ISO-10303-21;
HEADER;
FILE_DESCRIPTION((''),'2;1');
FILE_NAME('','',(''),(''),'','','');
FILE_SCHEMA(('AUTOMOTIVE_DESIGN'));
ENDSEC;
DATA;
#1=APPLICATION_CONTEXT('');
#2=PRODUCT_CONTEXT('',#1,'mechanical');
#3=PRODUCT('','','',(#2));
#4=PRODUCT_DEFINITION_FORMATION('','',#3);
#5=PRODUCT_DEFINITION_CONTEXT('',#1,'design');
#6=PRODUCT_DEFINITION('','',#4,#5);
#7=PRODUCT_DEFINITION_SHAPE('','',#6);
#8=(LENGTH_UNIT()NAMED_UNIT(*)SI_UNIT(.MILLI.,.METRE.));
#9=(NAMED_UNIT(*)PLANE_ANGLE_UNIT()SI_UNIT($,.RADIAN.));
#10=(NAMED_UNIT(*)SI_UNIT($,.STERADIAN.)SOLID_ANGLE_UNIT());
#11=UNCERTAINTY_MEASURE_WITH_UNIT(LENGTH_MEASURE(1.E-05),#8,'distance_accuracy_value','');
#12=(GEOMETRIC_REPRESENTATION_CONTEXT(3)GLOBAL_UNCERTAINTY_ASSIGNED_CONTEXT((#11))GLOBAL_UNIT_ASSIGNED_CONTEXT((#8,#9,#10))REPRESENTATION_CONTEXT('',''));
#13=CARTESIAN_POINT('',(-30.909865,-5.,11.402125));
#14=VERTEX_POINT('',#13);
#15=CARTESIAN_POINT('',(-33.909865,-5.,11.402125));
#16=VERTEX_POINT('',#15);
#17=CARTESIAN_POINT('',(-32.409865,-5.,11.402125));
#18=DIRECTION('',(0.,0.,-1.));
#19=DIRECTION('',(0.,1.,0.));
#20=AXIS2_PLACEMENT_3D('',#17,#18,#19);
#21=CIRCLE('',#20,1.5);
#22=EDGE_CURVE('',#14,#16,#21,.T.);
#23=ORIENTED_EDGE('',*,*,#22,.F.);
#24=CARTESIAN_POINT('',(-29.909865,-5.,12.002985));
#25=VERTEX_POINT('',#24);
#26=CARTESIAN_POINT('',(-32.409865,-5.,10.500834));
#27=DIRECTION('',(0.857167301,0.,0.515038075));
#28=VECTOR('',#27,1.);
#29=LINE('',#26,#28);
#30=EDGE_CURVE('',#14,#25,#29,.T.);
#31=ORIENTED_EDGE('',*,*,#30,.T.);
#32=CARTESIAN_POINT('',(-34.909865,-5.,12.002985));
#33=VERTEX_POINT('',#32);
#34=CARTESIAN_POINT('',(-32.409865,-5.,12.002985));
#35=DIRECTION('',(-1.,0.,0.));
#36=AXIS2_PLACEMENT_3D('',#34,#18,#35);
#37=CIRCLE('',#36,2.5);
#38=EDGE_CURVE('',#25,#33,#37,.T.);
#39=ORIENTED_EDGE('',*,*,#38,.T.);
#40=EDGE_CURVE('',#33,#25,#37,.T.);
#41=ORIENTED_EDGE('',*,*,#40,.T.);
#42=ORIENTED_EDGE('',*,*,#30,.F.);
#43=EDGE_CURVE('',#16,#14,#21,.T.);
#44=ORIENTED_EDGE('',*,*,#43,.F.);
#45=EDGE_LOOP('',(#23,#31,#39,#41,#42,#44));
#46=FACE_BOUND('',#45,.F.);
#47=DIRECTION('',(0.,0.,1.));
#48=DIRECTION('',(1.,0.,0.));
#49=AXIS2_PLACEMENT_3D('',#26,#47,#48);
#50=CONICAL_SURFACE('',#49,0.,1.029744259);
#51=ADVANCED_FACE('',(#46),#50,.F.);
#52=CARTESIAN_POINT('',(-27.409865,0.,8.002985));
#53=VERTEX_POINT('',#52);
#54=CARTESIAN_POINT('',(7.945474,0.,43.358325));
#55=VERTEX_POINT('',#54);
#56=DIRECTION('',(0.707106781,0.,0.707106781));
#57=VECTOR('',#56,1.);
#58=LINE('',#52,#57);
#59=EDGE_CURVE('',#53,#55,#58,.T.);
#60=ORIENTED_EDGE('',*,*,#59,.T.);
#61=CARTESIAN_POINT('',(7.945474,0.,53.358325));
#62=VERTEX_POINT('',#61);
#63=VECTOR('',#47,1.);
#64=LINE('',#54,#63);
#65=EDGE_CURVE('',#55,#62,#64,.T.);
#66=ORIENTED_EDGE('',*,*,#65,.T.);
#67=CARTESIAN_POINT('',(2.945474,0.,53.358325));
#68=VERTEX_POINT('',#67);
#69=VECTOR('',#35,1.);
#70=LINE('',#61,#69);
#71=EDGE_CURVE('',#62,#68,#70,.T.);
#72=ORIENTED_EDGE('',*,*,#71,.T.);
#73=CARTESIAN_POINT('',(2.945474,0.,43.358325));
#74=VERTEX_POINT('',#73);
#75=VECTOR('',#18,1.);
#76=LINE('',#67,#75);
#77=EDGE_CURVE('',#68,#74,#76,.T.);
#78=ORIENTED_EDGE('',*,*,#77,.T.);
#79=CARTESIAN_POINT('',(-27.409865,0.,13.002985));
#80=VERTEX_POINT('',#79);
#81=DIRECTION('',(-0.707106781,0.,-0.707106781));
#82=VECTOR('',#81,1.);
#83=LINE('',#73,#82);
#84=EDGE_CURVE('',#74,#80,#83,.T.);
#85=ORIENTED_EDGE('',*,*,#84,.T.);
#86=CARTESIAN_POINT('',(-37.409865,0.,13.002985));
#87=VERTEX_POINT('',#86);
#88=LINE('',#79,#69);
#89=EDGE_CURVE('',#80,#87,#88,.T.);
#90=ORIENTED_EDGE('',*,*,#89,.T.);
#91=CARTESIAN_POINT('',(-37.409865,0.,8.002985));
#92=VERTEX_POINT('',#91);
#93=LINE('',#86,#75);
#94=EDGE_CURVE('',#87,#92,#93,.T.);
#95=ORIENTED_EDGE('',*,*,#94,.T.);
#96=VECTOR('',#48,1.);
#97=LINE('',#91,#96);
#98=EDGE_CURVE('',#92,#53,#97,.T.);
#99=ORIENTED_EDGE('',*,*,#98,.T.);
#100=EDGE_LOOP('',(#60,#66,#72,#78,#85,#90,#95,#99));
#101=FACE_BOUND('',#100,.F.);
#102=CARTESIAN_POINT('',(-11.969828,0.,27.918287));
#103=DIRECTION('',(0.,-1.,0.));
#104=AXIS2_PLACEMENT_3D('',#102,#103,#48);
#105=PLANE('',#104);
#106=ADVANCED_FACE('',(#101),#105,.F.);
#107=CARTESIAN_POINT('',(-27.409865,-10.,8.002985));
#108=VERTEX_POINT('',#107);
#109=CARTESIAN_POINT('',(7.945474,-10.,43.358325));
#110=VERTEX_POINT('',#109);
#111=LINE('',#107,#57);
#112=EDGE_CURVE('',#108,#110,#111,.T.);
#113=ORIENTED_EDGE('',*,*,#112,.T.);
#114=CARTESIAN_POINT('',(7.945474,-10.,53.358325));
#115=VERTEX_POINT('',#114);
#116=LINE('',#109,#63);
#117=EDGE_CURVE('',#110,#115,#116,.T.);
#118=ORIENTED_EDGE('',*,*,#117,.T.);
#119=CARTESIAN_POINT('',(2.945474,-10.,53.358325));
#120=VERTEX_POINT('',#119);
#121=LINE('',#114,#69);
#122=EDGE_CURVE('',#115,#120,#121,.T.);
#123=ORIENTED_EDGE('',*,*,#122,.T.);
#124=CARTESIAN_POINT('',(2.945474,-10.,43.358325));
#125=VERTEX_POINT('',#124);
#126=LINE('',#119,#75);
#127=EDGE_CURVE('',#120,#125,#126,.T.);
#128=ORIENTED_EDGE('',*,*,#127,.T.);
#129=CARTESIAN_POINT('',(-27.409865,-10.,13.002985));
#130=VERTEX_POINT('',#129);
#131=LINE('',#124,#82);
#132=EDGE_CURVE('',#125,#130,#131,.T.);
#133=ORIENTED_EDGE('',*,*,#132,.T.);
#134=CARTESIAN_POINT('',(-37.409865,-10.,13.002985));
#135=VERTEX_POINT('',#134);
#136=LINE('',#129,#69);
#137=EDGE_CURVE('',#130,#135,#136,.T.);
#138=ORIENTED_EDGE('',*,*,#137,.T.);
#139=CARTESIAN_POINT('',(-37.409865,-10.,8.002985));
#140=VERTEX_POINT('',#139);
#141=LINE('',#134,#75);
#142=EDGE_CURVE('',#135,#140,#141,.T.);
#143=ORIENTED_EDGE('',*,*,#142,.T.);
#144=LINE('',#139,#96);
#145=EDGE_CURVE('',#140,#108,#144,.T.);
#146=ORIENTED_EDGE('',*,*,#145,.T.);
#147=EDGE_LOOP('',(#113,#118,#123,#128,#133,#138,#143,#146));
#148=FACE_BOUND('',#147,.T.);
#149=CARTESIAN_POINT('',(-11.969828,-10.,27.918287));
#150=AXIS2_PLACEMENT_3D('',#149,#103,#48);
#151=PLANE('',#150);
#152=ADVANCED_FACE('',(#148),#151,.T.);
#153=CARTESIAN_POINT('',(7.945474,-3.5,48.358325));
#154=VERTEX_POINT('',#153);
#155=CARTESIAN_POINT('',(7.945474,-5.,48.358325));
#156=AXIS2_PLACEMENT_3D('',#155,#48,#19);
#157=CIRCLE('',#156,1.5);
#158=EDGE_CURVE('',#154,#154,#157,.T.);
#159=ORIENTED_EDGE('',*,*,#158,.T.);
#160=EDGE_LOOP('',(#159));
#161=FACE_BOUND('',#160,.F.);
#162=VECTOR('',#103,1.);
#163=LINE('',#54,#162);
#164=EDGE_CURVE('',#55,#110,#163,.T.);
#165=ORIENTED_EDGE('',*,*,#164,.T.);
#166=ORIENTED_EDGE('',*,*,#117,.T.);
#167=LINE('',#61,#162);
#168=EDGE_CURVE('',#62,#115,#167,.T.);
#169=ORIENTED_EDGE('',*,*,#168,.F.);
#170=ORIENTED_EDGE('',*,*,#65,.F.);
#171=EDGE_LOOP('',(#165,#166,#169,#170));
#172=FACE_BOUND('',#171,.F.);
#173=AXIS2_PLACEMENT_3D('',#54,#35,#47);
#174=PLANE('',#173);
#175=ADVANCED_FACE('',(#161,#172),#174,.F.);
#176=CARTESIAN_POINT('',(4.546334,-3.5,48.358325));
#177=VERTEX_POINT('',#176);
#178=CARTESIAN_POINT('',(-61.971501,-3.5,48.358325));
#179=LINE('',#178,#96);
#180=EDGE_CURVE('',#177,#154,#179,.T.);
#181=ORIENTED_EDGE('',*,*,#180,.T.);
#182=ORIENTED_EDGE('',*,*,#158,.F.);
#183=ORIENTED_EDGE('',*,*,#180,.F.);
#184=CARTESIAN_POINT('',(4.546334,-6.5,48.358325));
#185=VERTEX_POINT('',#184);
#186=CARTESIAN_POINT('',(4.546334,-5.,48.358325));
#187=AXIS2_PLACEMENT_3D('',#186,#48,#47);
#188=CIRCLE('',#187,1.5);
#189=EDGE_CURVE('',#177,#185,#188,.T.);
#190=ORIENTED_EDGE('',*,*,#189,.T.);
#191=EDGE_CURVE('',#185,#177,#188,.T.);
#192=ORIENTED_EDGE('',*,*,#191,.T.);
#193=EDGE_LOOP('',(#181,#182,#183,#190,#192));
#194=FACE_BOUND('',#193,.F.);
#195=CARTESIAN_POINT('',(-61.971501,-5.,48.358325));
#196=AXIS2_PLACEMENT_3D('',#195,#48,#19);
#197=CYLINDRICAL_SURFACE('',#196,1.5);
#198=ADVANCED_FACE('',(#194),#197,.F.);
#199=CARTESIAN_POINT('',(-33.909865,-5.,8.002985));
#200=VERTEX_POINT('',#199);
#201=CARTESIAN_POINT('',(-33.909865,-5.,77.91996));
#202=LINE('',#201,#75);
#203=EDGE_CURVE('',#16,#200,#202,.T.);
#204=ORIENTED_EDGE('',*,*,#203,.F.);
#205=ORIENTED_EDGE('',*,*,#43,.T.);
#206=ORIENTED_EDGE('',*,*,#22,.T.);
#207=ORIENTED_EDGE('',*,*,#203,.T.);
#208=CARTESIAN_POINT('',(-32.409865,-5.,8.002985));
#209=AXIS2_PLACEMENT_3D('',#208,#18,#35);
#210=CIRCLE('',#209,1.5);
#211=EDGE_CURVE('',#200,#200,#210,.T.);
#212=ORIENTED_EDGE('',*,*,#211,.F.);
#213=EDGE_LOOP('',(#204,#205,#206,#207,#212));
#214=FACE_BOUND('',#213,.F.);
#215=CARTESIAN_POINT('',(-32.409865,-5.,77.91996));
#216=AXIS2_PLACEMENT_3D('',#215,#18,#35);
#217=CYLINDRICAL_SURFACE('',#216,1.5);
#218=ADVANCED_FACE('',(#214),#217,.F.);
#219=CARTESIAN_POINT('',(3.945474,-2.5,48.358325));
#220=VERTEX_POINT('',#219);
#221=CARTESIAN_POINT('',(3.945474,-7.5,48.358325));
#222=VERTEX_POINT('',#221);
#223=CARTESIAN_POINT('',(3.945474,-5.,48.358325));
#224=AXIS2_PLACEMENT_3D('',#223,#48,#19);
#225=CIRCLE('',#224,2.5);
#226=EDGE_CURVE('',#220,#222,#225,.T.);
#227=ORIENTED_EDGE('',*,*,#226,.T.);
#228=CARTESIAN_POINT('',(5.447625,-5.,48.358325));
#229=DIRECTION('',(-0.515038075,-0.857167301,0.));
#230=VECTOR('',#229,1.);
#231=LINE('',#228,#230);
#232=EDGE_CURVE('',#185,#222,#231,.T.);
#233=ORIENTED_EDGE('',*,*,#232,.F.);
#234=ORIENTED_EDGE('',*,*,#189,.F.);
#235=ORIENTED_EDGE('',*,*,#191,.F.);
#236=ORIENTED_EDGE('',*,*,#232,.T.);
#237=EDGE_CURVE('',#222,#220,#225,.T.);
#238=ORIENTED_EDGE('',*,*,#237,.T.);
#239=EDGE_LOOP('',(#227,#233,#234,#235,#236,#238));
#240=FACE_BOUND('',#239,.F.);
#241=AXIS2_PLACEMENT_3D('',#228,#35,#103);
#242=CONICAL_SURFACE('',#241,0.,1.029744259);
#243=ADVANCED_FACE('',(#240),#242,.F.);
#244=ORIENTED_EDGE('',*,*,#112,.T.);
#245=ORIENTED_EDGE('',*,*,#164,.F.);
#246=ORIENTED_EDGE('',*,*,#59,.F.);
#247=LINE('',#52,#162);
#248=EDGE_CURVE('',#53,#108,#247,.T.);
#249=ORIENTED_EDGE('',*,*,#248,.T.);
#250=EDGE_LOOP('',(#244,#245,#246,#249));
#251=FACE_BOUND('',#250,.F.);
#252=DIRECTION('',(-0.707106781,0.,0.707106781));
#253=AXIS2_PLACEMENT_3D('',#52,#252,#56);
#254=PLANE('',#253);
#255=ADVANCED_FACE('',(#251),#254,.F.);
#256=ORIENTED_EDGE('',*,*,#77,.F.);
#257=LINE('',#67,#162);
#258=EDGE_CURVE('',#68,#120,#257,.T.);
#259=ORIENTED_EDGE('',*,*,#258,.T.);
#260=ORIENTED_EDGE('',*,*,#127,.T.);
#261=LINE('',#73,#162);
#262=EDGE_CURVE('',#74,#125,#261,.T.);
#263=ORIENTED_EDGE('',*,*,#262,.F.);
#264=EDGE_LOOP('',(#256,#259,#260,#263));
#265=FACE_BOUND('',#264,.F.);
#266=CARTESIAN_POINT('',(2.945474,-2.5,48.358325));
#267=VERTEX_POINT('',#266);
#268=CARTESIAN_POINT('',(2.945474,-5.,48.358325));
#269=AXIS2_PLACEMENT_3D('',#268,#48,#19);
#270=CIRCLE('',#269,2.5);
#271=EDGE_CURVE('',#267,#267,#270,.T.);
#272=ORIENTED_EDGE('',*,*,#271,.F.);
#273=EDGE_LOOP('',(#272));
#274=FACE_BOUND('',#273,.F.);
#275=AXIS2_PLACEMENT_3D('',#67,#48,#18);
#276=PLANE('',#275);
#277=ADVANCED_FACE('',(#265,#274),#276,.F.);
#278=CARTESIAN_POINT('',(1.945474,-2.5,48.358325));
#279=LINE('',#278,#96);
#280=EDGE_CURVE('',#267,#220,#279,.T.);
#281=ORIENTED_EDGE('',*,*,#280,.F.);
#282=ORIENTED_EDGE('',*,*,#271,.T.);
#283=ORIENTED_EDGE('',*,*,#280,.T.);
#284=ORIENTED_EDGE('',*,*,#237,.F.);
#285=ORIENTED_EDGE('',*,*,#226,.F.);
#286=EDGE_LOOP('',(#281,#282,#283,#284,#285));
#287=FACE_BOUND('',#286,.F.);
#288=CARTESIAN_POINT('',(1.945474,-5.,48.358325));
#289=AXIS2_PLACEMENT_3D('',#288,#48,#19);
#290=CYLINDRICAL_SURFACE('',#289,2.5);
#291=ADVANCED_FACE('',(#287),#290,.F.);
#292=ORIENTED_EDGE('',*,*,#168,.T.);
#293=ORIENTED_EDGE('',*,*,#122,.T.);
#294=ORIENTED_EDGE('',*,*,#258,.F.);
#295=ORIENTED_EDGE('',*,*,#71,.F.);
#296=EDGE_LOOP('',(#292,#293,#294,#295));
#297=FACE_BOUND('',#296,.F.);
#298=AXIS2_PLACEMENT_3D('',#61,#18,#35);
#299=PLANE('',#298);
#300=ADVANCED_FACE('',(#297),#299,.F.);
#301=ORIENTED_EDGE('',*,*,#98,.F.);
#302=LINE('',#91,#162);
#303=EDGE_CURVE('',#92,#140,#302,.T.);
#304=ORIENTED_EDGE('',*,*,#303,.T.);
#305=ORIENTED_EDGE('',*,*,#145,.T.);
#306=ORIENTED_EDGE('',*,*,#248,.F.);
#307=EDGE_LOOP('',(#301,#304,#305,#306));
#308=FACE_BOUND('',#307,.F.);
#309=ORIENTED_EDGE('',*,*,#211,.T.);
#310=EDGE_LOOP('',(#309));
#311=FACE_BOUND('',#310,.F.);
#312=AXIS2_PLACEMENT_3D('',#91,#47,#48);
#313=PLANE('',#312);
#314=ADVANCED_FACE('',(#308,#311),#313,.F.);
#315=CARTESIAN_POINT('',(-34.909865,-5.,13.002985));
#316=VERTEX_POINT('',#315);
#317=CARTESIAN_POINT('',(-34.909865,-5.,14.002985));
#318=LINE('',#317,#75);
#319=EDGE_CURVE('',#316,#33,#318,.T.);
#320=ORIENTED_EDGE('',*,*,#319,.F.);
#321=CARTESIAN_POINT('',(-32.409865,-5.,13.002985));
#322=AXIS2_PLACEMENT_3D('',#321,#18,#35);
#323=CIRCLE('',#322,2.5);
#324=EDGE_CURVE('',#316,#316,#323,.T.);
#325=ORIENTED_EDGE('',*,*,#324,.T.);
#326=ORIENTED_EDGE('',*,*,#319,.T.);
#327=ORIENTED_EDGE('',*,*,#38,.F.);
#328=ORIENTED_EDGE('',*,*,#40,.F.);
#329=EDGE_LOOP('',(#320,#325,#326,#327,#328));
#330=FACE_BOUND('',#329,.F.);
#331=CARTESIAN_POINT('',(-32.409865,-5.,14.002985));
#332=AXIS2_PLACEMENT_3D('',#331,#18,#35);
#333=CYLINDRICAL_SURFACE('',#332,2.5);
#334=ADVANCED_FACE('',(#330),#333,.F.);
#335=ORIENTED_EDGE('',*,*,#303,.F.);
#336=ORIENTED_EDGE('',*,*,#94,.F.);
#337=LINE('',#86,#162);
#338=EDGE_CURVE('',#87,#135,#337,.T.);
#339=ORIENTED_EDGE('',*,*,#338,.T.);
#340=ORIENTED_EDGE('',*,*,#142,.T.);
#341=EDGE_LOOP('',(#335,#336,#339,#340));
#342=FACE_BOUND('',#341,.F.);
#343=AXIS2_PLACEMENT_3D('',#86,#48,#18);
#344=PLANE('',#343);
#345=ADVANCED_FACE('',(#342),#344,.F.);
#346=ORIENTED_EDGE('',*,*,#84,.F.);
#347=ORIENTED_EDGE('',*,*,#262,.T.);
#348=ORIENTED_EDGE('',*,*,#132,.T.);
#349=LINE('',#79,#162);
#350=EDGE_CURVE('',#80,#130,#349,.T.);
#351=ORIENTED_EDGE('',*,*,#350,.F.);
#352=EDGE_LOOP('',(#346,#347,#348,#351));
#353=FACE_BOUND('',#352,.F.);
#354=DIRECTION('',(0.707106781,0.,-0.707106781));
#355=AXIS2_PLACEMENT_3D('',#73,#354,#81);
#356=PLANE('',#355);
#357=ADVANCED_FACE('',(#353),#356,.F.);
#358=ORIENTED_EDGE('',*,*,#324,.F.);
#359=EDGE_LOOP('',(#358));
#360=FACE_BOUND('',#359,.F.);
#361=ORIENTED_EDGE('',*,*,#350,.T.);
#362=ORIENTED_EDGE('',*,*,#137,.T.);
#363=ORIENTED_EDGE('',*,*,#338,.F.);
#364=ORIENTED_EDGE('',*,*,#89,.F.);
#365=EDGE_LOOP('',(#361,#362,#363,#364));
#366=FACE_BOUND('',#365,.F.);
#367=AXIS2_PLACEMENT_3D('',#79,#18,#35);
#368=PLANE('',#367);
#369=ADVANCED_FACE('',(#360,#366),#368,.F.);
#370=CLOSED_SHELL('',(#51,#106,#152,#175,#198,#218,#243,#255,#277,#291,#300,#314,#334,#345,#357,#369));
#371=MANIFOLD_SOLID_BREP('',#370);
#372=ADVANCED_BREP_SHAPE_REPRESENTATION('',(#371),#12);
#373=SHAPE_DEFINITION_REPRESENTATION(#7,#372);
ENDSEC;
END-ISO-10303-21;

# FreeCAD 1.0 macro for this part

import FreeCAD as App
import Part
import Sketcher

doc = App.newDocument("Part")
body = doc.addObject("PartDesign::Body", "Body")

sketch1 = body.newObject("Sketcher::SketchObject", "Sketch")
sketch1.AttachmentSupport = (doc.getObject("XZ_Plane"), [""])
sketch1.MapMode = "FlatFace"
sketch1.addGeometry(Part.LineSegment(App.Vector(7.945474, 53.358325, 0), App.Vector(2.945474, 53.358325, 0)), False)
sketch1.addGeometry(Part.LineSegment(App.Vector(2.945474, 53.358325, 0), App.Vector(2.945474, 43.358325, 0)), False)
sketch1.addGeometry(Part.LineSegment(App.Vector(2.945474, 43.358325, 0), App.Vector(-27.409865, 13.002985, 0)), False)
sketch1.addGeometry(Part.LineSegment(App.Vector(-27.409865, 13.002985, 0), App.Vector(-37.409865, 13.002985, 0)), False)
sketch1.addGeometry(Part.LineSegment(App.Vector(-37.409865, 13.002985, 0), App.Vector(-37.409865, 8.002985, 0)), False)
sketch1.addGeometry(Part.LineSegment(App.Vector(-37.409865, 8.002985, 0), App.Vector(-27.409865, 8.002985, 0)), False)
sketch1.addGeometry(Part.LineSegment(App.Vector(-27.409865, 8.002985, 0), App.Vector(7.945474, 43.358325, 0)), False)
sketch1.addGeometry(Part.LineSegment(App.Vector(7.945474, 43.358325, 0), App.Vector(7.945474, 53.358325, 0)), False)
sketch1.addConstraint(Sketcher.Constraint("Coincident", 0, 2, 1, 1))
sketch1.addConstraint(Sketcher.Constraint("Coincident", 1, 2, 2, 1))
sketch1.addConstraint(Sketcher.Constraint("Coincident", 2, 2, 3, 1))
sketch1.addConstraint(Sketcher.Constraint("Coincident", 3, 2, 4, 1))
sketch1.addConstraint(Sketcher.Constraint("Coincident", 4, 2, 5, 1))
sketch1.addConstraint(Sketcher.Constraint("Coincident", 5, 2, 6, 1))
sketch1.addConstraint(Sketcher.Constraint("Coincident", 6, 2, 7, 1))
sketch1.addConstraint(Sketcher.Constraint("Coincident", 7, 2, 0, 1))
sketch1.addConstraint(Sketcher.Constraint("Horizontal", 0))
sketch1.addConstraint(Sketcher.Constraint("Vertical", 1))
sketch1.addConstraint(Sketcher.Constraint("Horizontal", 3))
sketch1.addConstraint(Sketcher.Constraint("Vertical", 4))
sketch1.addConstraint(Sketcher.Constraint("Horizontal", 5))
sketch1.addConstraint(Sketcher.Constraint("Vertical", 7))
sketch1.addConstraint(Sketcher.Constraint("Parallel", 2, 6))
sketch1.addConstraint(Sketcher.Constraint("Horizontal", 1, 2, 6, 2))
sketch1.addConstraint(Sketcher.Constraint("Vertical", 2, 2, 5, 2))
sketch1.addConstraint(Sketcher.Constraint("Equal", 5, 1))
sketch1.addConstraint(Sketcher.Constraint("Equal", 0, 4))
sketch1.addConstraint(Sketcher.Constraint("DistanceX", 0, 2, 0, 1, 5.0))
sketch1.addConstraint(Sketcher.Constraint("DistanceX", 3, 2, 3, 1, 10.0))
sketch1.addConstraint(Sketcher.Constraint("Distance", 6, 50.0))
sketch1.addConstraint(Sketcher.Constraint("DistanceX", -1, 1, 0, 2, 2.945474))
sketch1.addConstraint(Sketcher.Constraint("DistanceY", -1, 1, 0, 2, 53.358325))
pad1 = body.newObject("PartDesign::Pad", "Pad")
pad1.Profile = sketch1
pad1.Length = 10

sketch2 = body.newObject("Sketcher::SketchObject", "Sketch001")
sketch2.AttachmentSupport = (doc.getObject("YZ_Plane"), [""])
sketch2.MapMode = "FlatFace"
sketch2.AttachmentOffset = App.Placement(App.Vector(0, 0, 2.945474), App.Rotation())
sketch2.addGeometry(Part.Circle(App.Vector(-5, 48.358325, 0), App.Vector(0, 0, 1), 2.5), False)
sketch2.addConstraint(Sketcher.Constraint("Diameter", 0, 5.0))
sketch2.addConstraint(Sketcher.Constraint("DistanceX", 0, 3, -1, 1, 5.0))
sketch2.addConstraint(Sketcher.Constraint("DistanceY", -1, 1, 0, 3, 48.358325))
doc.recompute()
hole = body.newObject("PartDesign::Hole", "Hole")
hole.Profile = sketch2
hole.ThreadType = "None"
hole.Diameter = 5
hole.DepthType = "Dimension"
hole.Depth = 1
hole.DrillPoint = "Angled"
hole.DrillPointAngle = 118
hole.Reversed = True

sketch3 = body.newObject("Sketcher::SketchObject", "Sketch002")
sketch3.AttachmentSupport = (doc.getObject("XY_Plane"), [""])
sketch3.MapMode = "FlatFace"
sketch3.AttachmentOffset = App.Placement(App.Vector(0, 0, 13.002985), App.Rotation())
sketch3.addGeometry(Part.Circle(App.Vector(-32.409865, -5, 0), App.Vector(0, 0, 1), 2.5), False)
sketch3.addConstraint(Sketcher.Constraint("Diameter", 0, 5.0))
sketch3.addConstraint(Sketcher.Constraint("DistanceY", 0, 3, -1, 1, 5.0))
sketch3.addConstraint(Sketcher.Constraint("DistanceX", 0, 3, -1, 1, 32.409865))
doc.recompute()
hole2 = body.newObject("PartDesign::Hole", "Hole001")
hole2.Profile = sketch3
hole2.ThreadType = "None"
hole2.Diameter = 5
hole2.DepthType = "Dimension"
hole2.Depth = 1
hole2.DrillPoint = "Angled"
hole2.DrillPointAngle = 118

sketch4 = body.newObject("Sketcher::SketchObject", "Sketch003")
sketch4.AttachmentSupport = (doc.getObject("XY_Plane"), [""])
sketch4.MapMode = "FlatFace"
sketch4.AttachmentOffset = App.Placement(App.Vector(0, 0, 13.002985), App.Rotation())
sketch4.addGeometry(Part.Circle(App.Vector(-32.409865, -5, 0), App.Vector(0, 0, 1), 1.5), False)
sketch4.addConstraint(Sketcher.Constraint("Diameter", 0, 3.0))
sketch4.addConstraint(Sketcher.Constraint("DistanceY", 0, 3, -1, 1, 5.0))
sketch4.addConstraint(Sketcher.Constraint("DistanceX", 0, 3, -1, 1, 32.409865))
doc.recompute()
hole3 = body.newObject("PartDesign::Hole", "Hole002")
hole3.Profile = sketch4
hole3.ThreadType = "None"
hole3.Diameter = 3
hole3.DepthType = "ThroughAll"

sketch5 = body.newObject("Sketcher::SketchObject", "Sketch004")
sketch5.AttachmentSupport = (doc.getObject("YZ_Plane"), [""])
sketch5.MapMode = "FlatFace"
sketch5.AttachmentOffset = App.Placement(App.Vector(0, 0, 2.945474), App.Rotation())
sketch5.addGeometry(Part.Circle(App.Vector(-5, 48.358325, 0), App.Vector(0, 0, 1), 1.5), False)
sketch5.addConstraint(Sketcher.Constraint("Diameter", 0, 3.0))
sketch5.addConstraint(Sketcher.Constraint("DistanceX", 0, 3, -1, 1, 5.0))
sketch5.addConstraint(Sketcher.Constraint("DistanceY", -1, 1, 0, 3, 48.358325))
doc.recompute()
hole4 = body.newObject("PartDesign::Hole", "Hole003")
hole4.Profile = sketch5
hole4.ThreadType = "None"
hole4.Diameter = 3
hole4.DepthType = "ThroughAll"
hole4.Reversed = True

doc.recompute()
